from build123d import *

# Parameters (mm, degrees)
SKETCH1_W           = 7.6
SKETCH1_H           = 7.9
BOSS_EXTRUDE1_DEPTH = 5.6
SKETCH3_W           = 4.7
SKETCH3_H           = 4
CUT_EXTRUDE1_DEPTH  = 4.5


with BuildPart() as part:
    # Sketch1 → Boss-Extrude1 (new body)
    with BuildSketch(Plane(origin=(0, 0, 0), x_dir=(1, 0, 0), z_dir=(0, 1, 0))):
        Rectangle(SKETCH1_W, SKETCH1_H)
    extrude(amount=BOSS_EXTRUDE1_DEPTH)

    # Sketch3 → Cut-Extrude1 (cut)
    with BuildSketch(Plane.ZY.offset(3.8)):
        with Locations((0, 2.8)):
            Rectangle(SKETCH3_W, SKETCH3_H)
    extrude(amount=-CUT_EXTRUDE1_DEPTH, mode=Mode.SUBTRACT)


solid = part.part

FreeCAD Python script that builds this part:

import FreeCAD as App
import Part
import Sketcher

V = App.Vector


def add_polygon(sketch, points):
    """Adds a closed chain of lines whose ends are joined by coincident constraints."""
    first, n = sketch.GeometryCount, len(points)
    for a, b in zip(points, points[1:] + points[:1]):
        sketch.addGeometry(Part.LineSegment(App.Vector(*a, 0), App.Vector(*b, 0)), False)
    for i in range(n):
        sketch.addConstraint(Sketcher.Constraint("Coincident", first + i, 2, first + (i + 1) % n, 1))

doc = App.newDocument("Part")
params = doc.addObject("Spreadsheet::Sheet", "Params")
for row, (alias, value) in enumerate([
    ("sketch1_width", "7.6 mm"),
    ("sketch1_height", "7.9 mm"),
    ("pad1_length", "5.6 mm"),
    ("sketch2_width", "4 mm"),
    ("sketch2_height", "4.7 mm"),
    ("pocket1_length", "4.5 mm"),
], start=1):
    params.set(f"A{row}", alias)
    params.set(f"B{row}", "=" + value)
    params.setAlias(f"B{row}", alias)

body = doc.addObject("PartDesign::Body", "Body")

# Sketch on XZ plane
sketch1 = body.newObject("Sketcher::SketchObject", "Sketch")
sketch1.AttachmentSupport = (doc.getObject("XZ_Plane"), [""])
sketch1.MapMode = "FlatFace"
add_polygon(sketch1, [(-3.8, -3.95), (-3.8, 3.95), (3.8, 3.95), (3.8, -3.95)])  # lines 0-3
sketch1.addConstraint([
    Sketcher.Constraint("Vertical", 0),
    Sketcher.Constraint("Horizontal", 1),
    Sketcher.Constraint("Vertical", 2),
    Sketcher.Constraint("Horizontal", 3),
    Sketcher.Constraint("Symmetric", 0, 2, 2, 2, -1, 1),
    Sketcher.Constraint("DistanceX", 1, 1, 1, 2, 7.6),
    Sketcher.Constraint("DistanceY", 0, 1, 0, 2, 7.9),
])
sketch1.setExpression("Constraints[9]", "Params.sketch1_width")
sketch1.setExpression("Constraints[10]", "Params.sketch1_height")
pad1 = body.newObject("PartDesign::Pad", "Pad")
pad1.Profile = sketch1
pad1.setExpression("Length", "Params.pad1_length")
pad1.Reversed = True

# Sketch on YZ plane
sketch2 = body.newObject("Sketcher::SketchObject", "Sketch001")
sketch2.AttachmentSupport = (doc.getObject("YZ_Plane"), [""])
sketch2.MapMode = "FlatFace"
sketch2.AttachmentOffset = App.Placement(V(0, 0, -3.8), App.Rotation())
add_polygon(sketch2, [(4.8, -2.35), (0.8, -2.35), (0.8, 2.35), (4.8, 2.35)])  # lines 0-3
sketch2.addConstraint([
    Sketcher.Constraint("Horizontal", 0),
    Sketcher.Constraint("Vertical", 1),
    Sketcher.Constraint("Horizontal", 2),
    Sketcher.Constraint("Vertical", 3),
    Sketcher.Constraint("DistanceX", 0, 2, 0, 1, 4.0),
    Sketcher.Constraint("DistanceY", 1, 1, 1, 2, 4.7),
    Sketcher.Constraint("DistanceX", -1, 1, 0, 2, 0.8),
    Sketcher.Constraint("DistanceY", 0, 2, -1, 1, 2.35),
])
sketch2.setExpression("Constraints[8]", "Params.sketch2_width")
sketch2.setExpression("Constraints[9]", "Params.sketch2_height")
pocket1 = body.newObject("PartDesign::Pocket", "Pocket")
pocket1.Profile = sketch2
pocket1.setExpression("Length", "Params.pocket1_length")
pocket1.Reversed = True

doc.recompute()
